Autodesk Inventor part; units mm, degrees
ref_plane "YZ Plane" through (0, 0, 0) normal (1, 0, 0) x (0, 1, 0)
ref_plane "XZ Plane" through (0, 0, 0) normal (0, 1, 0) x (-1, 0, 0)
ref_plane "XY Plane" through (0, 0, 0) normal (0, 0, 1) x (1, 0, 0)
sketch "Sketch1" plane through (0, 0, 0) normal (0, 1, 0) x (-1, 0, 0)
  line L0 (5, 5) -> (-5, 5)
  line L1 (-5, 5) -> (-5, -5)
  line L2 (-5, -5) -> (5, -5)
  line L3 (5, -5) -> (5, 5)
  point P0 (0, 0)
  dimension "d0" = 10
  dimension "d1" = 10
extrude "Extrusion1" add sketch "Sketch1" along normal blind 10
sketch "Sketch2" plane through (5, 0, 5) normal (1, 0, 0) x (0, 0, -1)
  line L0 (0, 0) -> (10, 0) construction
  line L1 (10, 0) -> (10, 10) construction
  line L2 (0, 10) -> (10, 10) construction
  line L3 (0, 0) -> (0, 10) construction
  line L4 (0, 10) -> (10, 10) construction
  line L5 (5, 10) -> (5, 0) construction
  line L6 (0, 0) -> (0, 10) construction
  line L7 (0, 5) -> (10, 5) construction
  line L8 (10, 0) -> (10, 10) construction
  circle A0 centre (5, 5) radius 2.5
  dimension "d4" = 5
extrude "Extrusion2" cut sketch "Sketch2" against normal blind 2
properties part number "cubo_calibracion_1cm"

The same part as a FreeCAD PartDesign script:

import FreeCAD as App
import Part
import Sketcher
from FreeCAD import Vector
Q = App.Units.Quantity

doc = App.newDocument("Part")
body = doc.addObject("PartDesign::Body", "Body")

sketch1 = body.newObject("Sketcher::SketchObject", "Sketch")
sketch1.AttachmentSupport = (doc.getObject("XZ_Plane"), [""])
sketch1.MapMode = "FlatFace"
sketch1.addGeometry([
    Part.LineSegment(Vector(-5, -5, 0), Vector(-5, 5, 0)),
    Part.LineSegment(Vector(-5, 5, 0), Vector(5, 5, 0)),
    Part.LineSegment(Vector(5, 5, 0), Vector(5, -5, 0)),
    Part.LineSegment(Vector(5, -5, 0), Vector(-5, -5, 0)),
], False)
sketch1.addConstraint([
    Sketcher.Constraint("Coincident", 0, 2, 1, 1),
    Sketcher.Constraint("Coincident", 1, 2, 2, 1),
    Sketcher.Constraint("Coincident", 2, 2, 3, 1),
    Sketcher.Constraint("Coincident", 3, 2, 0, 1),
    Sketcher.Constraint("Vertical", 0),
    Sketcher.Constraint("Horizontal", 1),
    Sketcher.Constraint("Vertical", 2),
    Sketcher.Constraint("Horizontal", 3),
    Sketcher.Constraint("Symmetric", 0, 2, 2, 2, -1, 1),
    Sketcher.Constraint("Equal", 3, 0),
    Sketcher.Constraint("DistanceX", 1, 1, 1, 2, Q("10 mm")),
])
pad1 = body.newObject("PartDesign::Pad", "Pad")
pad1.Profile = sketch1
pad1.Length = 10
pad1.Reversed = True

sketch2 = body.newObject("Sketcher::SketchObject", "Sketch001")
sketch2.AttachmentSupport = (doc.getObject("YZ_Plane"), [""])
sketch2.MapMode = "FlatFace"
sketch2.AttachmentOffset = App.Placement(Vector(0, 0, 5), App.Rotation())
sketch2.addGeometry(Part.Circle(Vector(5, 0, 0), Vector(0, 0, 1), 2.5), False)
sketch2.addConstraint([
    Sketcher.Constraint("PointOnObject", 0, 3, -1),
    Sketcher.Constraint("Diameter", 0, Q("5 mm")),
    Sketcher.Constraint("DistanceX", -1, 1, 0, 3, Q("5 mm")),
])
pocket1 = body.newObject("PartDesign::Pocket", "Pocket")
pocket1.Profile = sketch2
pocket1.Length = 2

doc.recompute()
